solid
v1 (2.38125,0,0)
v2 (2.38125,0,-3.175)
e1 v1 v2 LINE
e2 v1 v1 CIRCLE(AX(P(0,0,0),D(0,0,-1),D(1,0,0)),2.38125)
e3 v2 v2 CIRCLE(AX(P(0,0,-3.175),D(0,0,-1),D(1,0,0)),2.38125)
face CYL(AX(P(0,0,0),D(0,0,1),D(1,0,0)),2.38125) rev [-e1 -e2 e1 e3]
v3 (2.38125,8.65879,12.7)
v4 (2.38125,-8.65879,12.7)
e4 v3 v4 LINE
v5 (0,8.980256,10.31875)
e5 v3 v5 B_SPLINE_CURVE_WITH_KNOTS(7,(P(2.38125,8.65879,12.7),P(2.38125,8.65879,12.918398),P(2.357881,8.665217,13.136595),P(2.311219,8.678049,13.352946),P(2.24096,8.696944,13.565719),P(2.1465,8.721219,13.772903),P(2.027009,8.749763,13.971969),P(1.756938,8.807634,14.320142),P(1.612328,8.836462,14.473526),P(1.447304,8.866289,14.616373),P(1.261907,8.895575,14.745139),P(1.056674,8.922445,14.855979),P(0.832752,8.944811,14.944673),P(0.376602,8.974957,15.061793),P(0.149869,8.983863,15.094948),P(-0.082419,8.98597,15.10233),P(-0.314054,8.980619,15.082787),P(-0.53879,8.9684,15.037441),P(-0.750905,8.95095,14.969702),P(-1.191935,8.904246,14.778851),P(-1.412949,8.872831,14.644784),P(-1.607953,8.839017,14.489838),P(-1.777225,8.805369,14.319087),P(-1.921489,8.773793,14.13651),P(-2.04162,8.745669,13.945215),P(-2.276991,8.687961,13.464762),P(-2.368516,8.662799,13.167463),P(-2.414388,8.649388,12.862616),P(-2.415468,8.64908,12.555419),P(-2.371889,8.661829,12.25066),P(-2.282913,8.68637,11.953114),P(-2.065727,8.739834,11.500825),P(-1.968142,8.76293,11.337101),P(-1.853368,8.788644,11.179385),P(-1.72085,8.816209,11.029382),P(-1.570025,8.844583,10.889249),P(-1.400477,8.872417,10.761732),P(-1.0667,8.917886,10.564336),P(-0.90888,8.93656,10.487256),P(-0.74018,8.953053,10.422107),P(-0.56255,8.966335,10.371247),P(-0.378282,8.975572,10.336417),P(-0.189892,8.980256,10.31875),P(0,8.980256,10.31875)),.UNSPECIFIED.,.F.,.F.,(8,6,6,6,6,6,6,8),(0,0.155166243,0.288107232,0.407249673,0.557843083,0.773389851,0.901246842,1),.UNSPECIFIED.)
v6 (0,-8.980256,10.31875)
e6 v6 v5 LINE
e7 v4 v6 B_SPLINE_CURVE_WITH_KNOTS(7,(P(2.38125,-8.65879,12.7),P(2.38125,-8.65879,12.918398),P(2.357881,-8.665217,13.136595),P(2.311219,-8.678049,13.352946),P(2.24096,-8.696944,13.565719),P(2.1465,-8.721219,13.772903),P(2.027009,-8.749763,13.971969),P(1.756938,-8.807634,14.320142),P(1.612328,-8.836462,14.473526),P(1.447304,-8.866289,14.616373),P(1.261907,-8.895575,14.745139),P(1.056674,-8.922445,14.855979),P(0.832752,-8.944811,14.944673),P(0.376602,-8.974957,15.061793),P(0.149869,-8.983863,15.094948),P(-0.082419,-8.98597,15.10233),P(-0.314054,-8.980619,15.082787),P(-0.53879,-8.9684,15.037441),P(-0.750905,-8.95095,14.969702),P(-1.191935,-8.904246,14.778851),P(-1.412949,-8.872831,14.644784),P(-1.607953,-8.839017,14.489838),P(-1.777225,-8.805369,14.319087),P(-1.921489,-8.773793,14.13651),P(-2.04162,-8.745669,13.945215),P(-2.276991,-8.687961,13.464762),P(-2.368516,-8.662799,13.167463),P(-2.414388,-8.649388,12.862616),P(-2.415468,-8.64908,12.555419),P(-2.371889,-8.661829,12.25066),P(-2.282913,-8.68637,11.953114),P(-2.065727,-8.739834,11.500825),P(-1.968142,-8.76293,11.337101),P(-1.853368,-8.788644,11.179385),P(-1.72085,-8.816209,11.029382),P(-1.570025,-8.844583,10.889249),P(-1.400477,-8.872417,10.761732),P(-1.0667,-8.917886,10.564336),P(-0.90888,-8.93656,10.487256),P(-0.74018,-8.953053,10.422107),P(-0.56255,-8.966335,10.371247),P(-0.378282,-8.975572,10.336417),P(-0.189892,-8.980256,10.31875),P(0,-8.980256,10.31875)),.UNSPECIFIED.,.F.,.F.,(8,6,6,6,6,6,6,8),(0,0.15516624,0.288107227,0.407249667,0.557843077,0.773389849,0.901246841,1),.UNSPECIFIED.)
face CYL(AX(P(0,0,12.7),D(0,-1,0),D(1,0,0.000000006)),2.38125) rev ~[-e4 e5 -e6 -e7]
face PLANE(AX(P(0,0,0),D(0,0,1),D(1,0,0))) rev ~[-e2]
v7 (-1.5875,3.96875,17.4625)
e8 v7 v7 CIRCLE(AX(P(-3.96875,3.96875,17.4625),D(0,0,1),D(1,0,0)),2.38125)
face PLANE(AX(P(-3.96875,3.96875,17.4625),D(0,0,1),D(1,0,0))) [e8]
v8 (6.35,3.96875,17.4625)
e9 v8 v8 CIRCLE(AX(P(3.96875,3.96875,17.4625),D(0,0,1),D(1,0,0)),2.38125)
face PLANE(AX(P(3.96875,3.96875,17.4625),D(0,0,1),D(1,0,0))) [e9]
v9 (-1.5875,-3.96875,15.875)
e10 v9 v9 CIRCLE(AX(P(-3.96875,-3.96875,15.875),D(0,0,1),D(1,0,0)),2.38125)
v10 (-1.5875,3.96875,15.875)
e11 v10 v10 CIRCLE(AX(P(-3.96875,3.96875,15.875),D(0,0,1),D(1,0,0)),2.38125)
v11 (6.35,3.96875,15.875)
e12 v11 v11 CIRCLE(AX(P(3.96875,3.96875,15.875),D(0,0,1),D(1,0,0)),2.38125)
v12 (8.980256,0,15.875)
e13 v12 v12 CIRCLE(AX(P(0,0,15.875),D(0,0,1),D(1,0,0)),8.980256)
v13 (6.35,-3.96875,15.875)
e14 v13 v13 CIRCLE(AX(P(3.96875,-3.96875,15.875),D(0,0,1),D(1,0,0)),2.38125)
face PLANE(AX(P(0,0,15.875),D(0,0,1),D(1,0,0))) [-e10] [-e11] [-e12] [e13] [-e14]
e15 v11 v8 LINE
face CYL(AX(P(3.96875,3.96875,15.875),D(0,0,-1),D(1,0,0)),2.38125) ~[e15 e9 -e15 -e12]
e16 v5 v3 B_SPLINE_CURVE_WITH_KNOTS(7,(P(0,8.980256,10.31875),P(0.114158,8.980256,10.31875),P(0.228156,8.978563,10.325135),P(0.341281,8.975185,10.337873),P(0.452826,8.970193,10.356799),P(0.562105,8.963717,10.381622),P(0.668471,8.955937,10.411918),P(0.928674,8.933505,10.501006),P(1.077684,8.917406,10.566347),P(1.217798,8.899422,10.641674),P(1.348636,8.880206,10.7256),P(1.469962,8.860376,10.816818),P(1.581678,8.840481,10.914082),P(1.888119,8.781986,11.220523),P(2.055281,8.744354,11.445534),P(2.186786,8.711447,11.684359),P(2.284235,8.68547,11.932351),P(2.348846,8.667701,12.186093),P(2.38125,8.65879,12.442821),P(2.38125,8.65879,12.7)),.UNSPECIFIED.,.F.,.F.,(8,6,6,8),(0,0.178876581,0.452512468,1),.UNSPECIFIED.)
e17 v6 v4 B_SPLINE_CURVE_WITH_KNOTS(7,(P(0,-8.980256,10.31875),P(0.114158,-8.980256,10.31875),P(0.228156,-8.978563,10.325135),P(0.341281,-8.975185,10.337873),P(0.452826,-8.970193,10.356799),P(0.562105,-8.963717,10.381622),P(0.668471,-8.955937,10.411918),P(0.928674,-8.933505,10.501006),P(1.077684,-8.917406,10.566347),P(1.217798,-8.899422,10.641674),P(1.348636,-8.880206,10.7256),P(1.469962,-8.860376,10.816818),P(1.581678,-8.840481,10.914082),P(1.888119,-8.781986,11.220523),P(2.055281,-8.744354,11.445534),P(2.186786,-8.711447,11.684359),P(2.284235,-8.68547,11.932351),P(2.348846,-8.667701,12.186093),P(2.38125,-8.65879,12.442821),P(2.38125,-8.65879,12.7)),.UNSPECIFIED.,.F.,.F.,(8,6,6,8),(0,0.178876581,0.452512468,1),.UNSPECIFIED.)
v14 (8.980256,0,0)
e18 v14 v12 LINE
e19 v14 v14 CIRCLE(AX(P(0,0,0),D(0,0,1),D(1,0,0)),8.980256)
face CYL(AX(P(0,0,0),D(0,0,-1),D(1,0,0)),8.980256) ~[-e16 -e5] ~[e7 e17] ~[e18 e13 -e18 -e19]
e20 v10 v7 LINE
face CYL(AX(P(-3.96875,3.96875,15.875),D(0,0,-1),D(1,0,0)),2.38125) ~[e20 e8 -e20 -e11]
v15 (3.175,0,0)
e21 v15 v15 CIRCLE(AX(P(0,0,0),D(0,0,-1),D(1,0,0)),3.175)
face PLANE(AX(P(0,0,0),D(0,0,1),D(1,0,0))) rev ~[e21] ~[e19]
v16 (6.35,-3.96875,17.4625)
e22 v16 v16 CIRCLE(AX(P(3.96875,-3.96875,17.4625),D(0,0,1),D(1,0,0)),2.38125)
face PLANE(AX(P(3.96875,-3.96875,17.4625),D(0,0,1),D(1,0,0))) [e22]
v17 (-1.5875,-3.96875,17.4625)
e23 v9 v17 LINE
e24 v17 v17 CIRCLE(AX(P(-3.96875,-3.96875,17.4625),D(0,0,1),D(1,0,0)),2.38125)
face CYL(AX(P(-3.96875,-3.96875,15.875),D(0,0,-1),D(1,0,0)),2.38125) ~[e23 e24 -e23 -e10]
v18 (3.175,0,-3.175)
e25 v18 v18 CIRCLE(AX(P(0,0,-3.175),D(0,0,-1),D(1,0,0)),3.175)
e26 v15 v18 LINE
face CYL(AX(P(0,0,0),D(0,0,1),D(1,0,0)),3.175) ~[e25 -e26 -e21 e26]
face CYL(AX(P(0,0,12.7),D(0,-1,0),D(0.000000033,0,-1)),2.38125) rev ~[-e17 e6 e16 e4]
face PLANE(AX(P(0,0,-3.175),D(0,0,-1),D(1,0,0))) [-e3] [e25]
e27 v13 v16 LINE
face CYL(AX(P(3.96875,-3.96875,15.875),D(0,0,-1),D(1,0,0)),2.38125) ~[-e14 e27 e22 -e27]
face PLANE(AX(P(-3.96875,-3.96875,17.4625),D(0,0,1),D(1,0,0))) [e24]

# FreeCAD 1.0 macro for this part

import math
import FreeCAD as App
import Part
import Sketcher
Q = App.Units.Quantity

doc = App.newDocument("Part")
body = doc.addObject("PartDesign::Body", "Body")

sketch1 = body.newObject("Sketcher::SketchObject", "Sketch")
sketch1.AttachmentSupport = (doc.getObject("XY_Plane"), [""])
sketch1.MapMode = "FlatFace"
sketch1.addGeometry(Part.Circle(App.Vector(0, 0, 0), App.Vector(0, 0, 1), 8.980256), False)
sketch1.addConstraint([
    Sketcher.Constraint("Coincident", 0, 3, -1, 1),
    Sketcher.Constraint("Diameter", 0, 17.960512),
])
pad1 = body.newObject("PartDesign::Pad", "Pad")
pad1.Profile = sketch1
pad1.Length = Q("0.625 in")

sketch2 = body.newObject("Sketcher::SketchObject", "Sketch001")
sketch2.AttachmentSupport = (doc.getObject("XY_Plane"), [""])
sketch2.MapMode = "FlatFace"
sketch2.addGeometry([
    Part.Circle(App.Vector(0, 0, 0), App.Vector(0, 0, 1), 3.175),
    Part.Circle(App.Vector(0, 0, 0), App.Vector(0, 0, 1), 2.38125),
], False)
sketch2.addConstraint([
    Sketcher.Constraint("Coincident", 0, 3, -1, 1),
    Sketcher.Constraint("Coincident", 1, 3, -1, 1),
    Sketcher.Constraint("Diameter", 0, Q("0.25 in")),
    Sketcher.Constraint("Diameter", 1, Q("0.1875 in")),
])
pad2 = body.newObject("PartDesign::Pad", "Pad001")
pad2.Profile = sketch2
pad2.Length = Q("0.125 in")
pad2.Reversed = True

sketch3 = body.newObject("Sketcher::SketchObject", "Sketch002")
sketch3.AttachmentSupport = (doc.getObject("XY_Plane"), [""])
sketch3.MapMode = "FlatFace"
sketch3.AttachmentOffset = App.Placement(App.Vector(0, 0, 0.625 * 25.4), App.Rotation())
sketch3.addGeometry([
    Part.Circle(App.Vector(-3.96875, 3.96875, 0), App.Vector(0, 0, 1), 2.38125),
    Part.Circle(App.Vector(3.96875, 3.96875, 0), App.Vector(0, 0, 1), 2.38125),
    Part.Circle(App.Vector(3.96875, -3.96875, 0), App.Vector(0, 0, 1), 2.38125),
    Part.Circle(App.Vector(-3.96875, -3.96875, 0), App.Vector(0, 0, 1), 2.38125),
], False)
sketch3.addConstraint([
    Sketcher.Constraint("Equal", 0, 1),
    Sketcher.Constraint("Equal", 1, 2),
    Sketcher.Constraint("Equal", 2, 3),
    Sketcher.Constraint("Symmetric", 0, 3, 2, 3, -1, 1),
    Sketcher.Constraint("Symmetric", 1, 3, 3, 3, -1, 1),
    Sketcher.Constraint("Symmetric", 0, 3, 1, 3, -2),
    Sketcher.Constraint("Diameter", 0, Q("0.1875 in")),
    Sketcher.Constraint("DistanceX", 0, 3, -1, 1, Q("0.15625 in")),
    Sketcher.Constraint("DistanceY", -1, 1, 0, 3, Q("0.15625 in")),
])
pad3 = body.newObject("PartDesign::Pad", "Pad002")
pad3.Profile = sketch3
pad3.Length = Q("0.0625 in")

sketch4 = body.newObject("Sketcher::SketchObject", "Sketch003")
sketch4.AttachmentSupport = (doc.getObject("XZ_Plane"), [""])
sketch4.MapMode = "FlatFace"
sketch4.addGeometry([
    Part.ArcOfCircle(Part.Circle(App.Vector(0, 12.7, 0), App.Vector(0, 0, 1), 2.38125), math.radians(-89.999998), math.radians(-0.000002)),
    Part.ArcOfCircle(Part.Circle(App.Vector(0, 12.7, 0), App.Vector(0, 0, 1), 2.38125), math.radians(0), math.radians(270)),
], False)
sketch4.addConstraint([
    Sketcher.Constraint("Tangent", 0, 1, 1, 2),
    Sketcher.Constraint("Coincident", 1, 1, 0, 2),
    Sketcher.Constraint("PointOnObject", 0, 3, -2),
    Sketcher.Constraint("PointOnObject", 0, 1, -2),
    Sketcher.Constraint("Horizontal", 0, 3, 1, 1),
    Sketcher.Constraint("Radius", 0, Q("0.09375 in")),
    Sketcher.Constraint("DistanceY", -1, 1, 0, 3, Q("0.5 in")),
])
pocket1 = body.newObject("PartDesign::Pocket", "Pocket")
pocket1.Profile = sketch4
pocket1.Length = Q("1 in")
pocket1.Midplane = True

doc.recompute()
